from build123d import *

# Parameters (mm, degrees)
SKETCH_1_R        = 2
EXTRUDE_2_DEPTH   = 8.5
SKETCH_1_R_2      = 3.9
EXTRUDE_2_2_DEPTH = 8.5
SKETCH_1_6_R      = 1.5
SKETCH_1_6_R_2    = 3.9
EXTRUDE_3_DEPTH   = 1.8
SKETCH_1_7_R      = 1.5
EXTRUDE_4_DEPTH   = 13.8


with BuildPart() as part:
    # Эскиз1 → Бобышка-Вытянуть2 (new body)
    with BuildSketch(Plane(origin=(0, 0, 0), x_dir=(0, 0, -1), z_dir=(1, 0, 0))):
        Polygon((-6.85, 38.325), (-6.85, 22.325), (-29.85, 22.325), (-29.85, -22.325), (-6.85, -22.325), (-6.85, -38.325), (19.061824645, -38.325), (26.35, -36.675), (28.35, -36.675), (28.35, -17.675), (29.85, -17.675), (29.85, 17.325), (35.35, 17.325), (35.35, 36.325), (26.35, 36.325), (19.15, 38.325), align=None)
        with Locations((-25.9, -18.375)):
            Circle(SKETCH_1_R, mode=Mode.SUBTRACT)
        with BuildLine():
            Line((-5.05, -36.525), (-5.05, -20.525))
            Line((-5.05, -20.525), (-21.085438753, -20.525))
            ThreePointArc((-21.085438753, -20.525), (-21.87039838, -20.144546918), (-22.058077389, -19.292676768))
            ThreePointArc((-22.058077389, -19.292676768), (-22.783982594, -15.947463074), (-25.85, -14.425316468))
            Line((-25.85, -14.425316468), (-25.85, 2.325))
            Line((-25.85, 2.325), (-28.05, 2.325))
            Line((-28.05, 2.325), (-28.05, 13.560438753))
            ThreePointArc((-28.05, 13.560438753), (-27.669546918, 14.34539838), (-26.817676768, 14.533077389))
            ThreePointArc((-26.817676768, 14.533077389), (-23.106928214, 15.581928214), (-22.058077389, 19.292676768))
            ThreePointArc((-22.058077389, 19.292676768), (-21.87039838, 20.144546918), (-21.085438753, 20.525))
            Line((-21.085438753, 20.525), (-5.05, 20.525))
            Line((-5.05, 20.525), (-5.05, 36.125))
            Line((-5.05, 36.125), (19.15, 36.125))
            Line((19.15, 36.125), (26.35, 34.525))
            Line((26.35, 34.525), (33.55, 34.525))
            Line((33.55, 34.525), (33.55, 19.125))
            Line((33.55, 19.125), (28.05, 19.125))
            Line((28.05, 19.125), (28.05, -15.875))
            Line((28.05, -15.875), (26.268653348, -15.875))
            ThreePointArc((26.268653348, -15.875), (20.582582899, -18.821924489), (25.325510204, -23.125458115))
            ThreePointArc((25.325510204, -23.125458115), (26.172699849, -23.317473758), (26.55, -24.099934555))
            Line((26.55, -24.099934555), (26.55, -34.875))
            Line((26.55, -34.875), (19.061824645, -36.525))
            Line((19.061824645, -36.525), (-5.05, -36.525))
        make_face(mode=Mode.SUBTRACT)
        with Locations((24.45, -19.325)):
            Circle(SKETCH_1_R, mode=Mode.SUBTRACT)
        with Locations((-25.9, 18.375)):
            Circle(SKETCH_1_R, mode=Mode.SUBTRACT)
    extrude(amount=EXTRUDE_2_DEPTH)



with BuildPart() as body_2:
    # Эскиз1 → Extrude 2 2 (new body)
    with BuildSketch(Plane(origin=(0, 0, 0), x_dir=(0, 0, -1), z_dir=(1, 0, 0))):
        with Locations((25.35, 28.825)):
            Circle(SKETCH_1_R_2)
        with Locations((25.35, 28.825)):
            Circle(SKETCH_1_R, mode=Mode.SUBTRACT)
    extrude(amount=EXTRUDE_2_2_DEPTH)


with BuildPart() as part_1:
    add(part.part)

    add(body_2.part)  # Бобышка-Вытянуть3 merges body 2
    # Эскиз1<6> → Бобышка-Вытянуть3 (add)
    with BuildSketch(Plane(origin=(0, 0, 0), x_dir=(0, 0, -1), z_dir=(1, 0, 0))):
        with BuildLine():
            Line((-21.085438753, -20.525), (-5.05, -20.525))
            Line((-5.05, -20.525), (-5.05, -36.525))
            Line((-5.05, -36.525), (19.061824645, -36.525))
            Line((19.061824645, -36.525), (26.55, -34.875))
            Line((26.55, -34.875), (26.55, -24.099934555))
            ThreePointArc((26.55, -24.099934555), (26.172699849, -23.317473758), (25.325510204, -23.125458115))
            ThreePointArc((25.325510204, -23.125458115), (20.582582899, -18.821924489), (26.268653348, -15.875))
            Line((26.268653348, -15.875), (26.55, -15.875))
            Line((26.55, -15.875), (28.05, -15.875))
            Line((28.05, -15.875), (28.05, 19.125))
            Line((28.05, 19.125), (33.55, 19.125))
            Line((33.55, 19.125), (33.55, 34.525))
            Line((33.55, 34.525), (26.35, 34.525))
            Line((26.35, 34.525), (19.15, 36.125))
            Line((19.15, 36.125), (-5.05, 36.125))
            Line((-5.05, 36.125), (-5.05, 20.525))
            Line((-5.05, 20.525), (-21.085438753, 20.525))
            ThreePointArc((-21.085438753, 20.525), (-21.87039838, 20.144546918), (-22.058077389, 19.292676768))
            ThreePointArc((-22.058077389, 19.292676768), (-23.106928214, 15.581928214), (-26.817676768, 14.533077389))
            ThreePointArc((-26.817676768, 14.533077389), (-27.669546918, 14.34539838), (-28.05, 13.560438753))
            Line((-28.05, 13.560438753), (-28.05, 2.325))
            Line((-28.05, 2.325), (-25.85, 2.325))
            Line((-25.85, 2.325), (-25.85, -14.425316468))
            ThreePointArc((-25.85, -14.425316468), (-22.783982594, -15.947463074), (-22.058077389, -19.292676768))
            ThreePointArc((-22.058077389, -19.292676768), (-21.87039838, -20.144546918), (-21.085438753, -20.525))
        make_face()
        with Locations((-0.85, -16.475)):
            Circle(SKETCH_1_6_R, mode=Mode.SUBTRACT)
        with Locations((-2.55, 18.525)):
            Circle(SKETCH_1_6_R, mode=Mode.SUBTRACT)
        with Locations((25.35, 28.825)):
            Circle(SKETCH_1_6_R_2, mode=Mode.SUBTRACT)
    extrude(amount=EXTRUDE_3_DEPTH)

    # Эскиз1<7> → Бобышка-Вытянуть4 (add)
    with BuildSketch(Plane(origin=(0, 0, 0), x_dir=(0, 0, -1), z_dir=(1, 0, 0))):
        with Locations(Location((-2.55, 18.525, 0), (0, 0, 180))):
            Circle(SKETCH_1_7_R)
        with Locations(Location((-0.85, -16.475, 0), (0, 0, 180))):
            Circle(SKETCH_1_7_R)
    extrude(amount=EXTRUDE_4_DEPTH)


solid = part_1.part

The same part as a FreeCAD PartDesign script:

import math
import FreeCAD as App
import Part
import Sketcher
Q = App.Units.Quantity


def add_polygon(sketch, points):
    """Adds a closed chain of lines whose ends are joined by coincident constraints."""
    first, n = sketch.GeometryCount, len(points)
    for a, b in zip(points, points[1:] + points[:1]):
        sketch.addGeometry(Part.LineSegment(App.Vector(*a, 0), App.Vector(*b, 0)), False)
    for i in range(n):
        sketch.addConstraint(Sketcher.Constraint("Coincident", first + i, 2, first + (i + 1) % n, 1))

doc = App.newDocument("Part")
body = doc.addObject("PartDesign::Body", "Body")

# Sketch on YZ plane
sketch1 = doc.addObject("Sketcher::SketchObject", "Sketch")
body.addObject(sketch1)
sketch1.AttachmentSupport = (doc.YZ_Plane, [""])
sketch1.MapMode = "FlatFace"
add_polygon(sketch1, [(38.325, 6.85), (22.325, 6.85), (22.325, 29.85), (-22.325, 29.85), (-22.325, 6.85), (-38.325, 6.85), (-38.325, -19.061825), (-36.675, -26.35), (-36.675, -28.35), (-17.675, -28.35), (-17.675, -29.85), (17.325, -29.85), (17.325, -35.35), (36.325, -35.35), (36.325, -26.35), (38.325, -19.15)])  # lines 0-15
sketch1.addGeometry(Part.Circle(App.Vector(-18.375, 25.9, 0), App.Vector(0, 0, 1), 2), False)  # 16
sketch1.addGeometry(Part.Circle(App.Vector(-19.325, -24.45, 0), App.Vector(0, 0, 1), 2), False)  # 17
sketch1.addGeometry(Part.LineSegment(App.Vector(-36.525, -19.061825, 0), App.Vector(-36.525, 5.05, 0)), False)  # 18
sketch1.addGeometry(Part.LineSegment(App.Vector(-36.525, 5.05, 0), App.Vector(-20.525, 5.05, 0)), False)  # 19
sketch1.addGeometry(Part.LineSegment(App.Vector(-20.525, 5.05, 0), App.Vector(-20.525, 21.085439, 0)), False)  # 20
sketch1.addGeometry(Part.ArcOfCircle(Part.Circle(App.Vector(-19.525, 21.085439, 0), App.Vector(0, 0, 1), 1), math.radians(76.566111), math.radians(180)), False)  # 21
sketch1.addGeometry(Part.ArcOfCircle(Part.Circle(App.Vector(-18.375, 25.9, 0), App.Vector(0, 0, 1), 3.95), math.radians(-103.433889), math.radians(-0.725282)), False)  # 22
sketch1.addGeometry(Part.LineSegment(App.Vector(-14.425316, 25.85, 0), App.Vector(2.325, 25.85, 0)), False)  # 23
sketch1.addGeometry(Part.LineSegment(App.Vector(2.325, 25.85, 0), App.Vector(2.325, 28.05, 0)), False)  # 24
sketch1.addGeometry(Part.LineSegment(App.Vector(2.325, 28.05, 0), App.Vector(13.560439, 28.05, 0)), False)  # 25
sketch1.addGeometry(Part.ArcOfCircle(Part.Circle(App.Vector(13.560439, 27.05, 0), App.Vector(0, 0, 1), 1), math.radians(-13.433889), math.radians(90)), False)  # 26
sketch1.addGeometry(Part.ArcOfCircle(Part.Circle(App.Vector(18.375, 25.9, 0), App.Vector(0, 0, 1), 3.95), math.radians(166.566111), math.radians(283.433889)), False)  # 27
sketch1.addGeometry(Part.ArcOfCircle(Part.Circle(App.Vector(19.525, 21.085439, 0), App.Vector(0, 0, 1), 1), math.radians(0), math.radians(103.433889)), False)  # 28
sketch1.addGeometry(Part.LineSegment(App.Vector(20.525, 21.085439, 0), App.Vector(20.525, 5.05, 0)), False)  # 29
sketch1.addGeometry(Part.LineSegment(App.Vector(20.525, 5.05, 0), App.Vector(36.125, 5.05, 0)), False)  # 30
sketch1.addGeometry(Part.LineSegment(App.Vector(36.125, 5.05, 0), App.Vector(36.125, -19.15, 0)), False)  # 31
sketch1.addGeometry(Part.LineSegment(App.Vector(36.125, -19.15, 0), App.Vector(34.525, -26.35, 0)), False)  # 32
sketch1.addGeometry(Part.LineSegment(App.Vector(34.525, -26.35, 0), App.Vector(34.525, -33.55, 0)), False)  # 33
sketch1.addGeometry(Part.LineSegment(App.Vector(34.525, -33.55, 0), App.Vector(19.125, -33.55, 0)), False)  # 34
sketch1.addGeometry(Part.LineSegment(App.Vector(19.125, -33.55, 0), App.Vector(19.125, -28.05, 0)), False)  # 35
sketch1.addGeometry(Part.LineSegment(App.Vector(19.125, -28.05, 0), App.Vector(-15.875, -28.05, 0)), False)  # 36
sketch1.addGeometry(Part.LineSegment(App.Vector(-15.875, -28.05, 0), App.Vector(-15.875, -26.268653, 0)), False)  # 37
sketch1.addGeometry(Part.ArcOfCircle(Part.Circle(App.Vector(-19.325, -24.45, 0), App.Vector(0, 0, 1), 3.9), math.radians(-27.795772), math.radians(192.972878)), False)  # 38
sketch1.addGeometry(Part.ArcOfCircle(Part.Circle(App.Vector(-24.099935, -25.55, 0), App.Vector(0, 0, 1), 1), math.radians(-90), math.radians(12.972878)), False)  # 39
sketch1.addGeometry(Part.LineSegment(App.Vector(-24.099935, -26.55, 0), App.Vector(-34.875, -26.55, 0)), False)  # 40
sketch1.addGeometry(Part.LineSegment(App.Vector(-34.875, -26.55, 0), App.Vector(-36.525, -19.061825, 0)), False)  # 41
sketch1.addGeometry(Part.Circle(App.Vector(18.375, 25.9, 0), App.Vector(0, 0, 1), 2), False)  # 42
sketch1.addConstraint([
    Sketcher.Constraint("Coincident", 18, 2, 19, 1),
    Sketcher.Constraint("Coincident", 19, 2, 20, 1),
    Sketcher.Constraint("Tangent", 20, 2, 21, 2),
    Sketcher.Constraint("Tangent", 21, 1, 22, 1),
    Sketcher.Constraint("Coincident", 22, 2, 23, 1),
    Sketcher.Constraint("Coincident", 23, 2, 24, 1),
    Sketcher.Constraint("Coincident", 24, 2, 25, 1),
    Sketcher.Constraint("Tangent", 25, 2, 26, 2),
    Sketcher.Constraint("Tangent", 26, 1, 27, 1),
    Sketcher.Constraint("Tangent", 27, 2, 28, 2),
    Sketcher.Constraint("Tangent", 28, 1, 29, 1),
    Sketcher.Constraint("Coincident", 29, 2, 30, 1),
    Sketcher.Constraint("Coincident", 30, 2, 31, 1),
    Sketcher.Constraint("Coincident", 31, 2, 32, 1),
    Sketcher.Constraint("Coincident", 32, 2, 33, 1),
    Sketcher.Constraint("Coincident", 33, 2, 34, 1),
    Sketcher.Constraint("Coincident", 34, 2, 35, 1),
    Sketcher.Constraint("Coincident", 35, 2, 36, 1),
    Sketcher.Constraint("Coincident", 36, 2, 37, 1),
    Sketcher.Constraint("Coincident", 37, 2, 38, 1),
    Sketcher.Constraint("Tangent", 38, 2, 39, 2),
    Sketcher.Constraint("Tangent", 39, 1, 40, 1),
    Sketcher.Constraint("Coincident", 40, 2, 41, 1),
    Sketcher.Constraint("Coincident", 41, 2, 18, 1),
    Sketcher.Constraint("Horizontal", 0),
    Sketcher.Constraint("Vertical", 1),
    Sketcher.Constraint("Horizontal", 2),
    Sketcher.Constraint("Vertical", 3),
    Sketcher.Constraint("Horizontal", 4),
    Sketcher.Constraint("Vertical", 5),
    Sketcher.Constraint("Vertical", 7),
    Sketcher.Constraint("Horizontal", 8),
    Sketcher.Constraint("Vertical", 9),
    Sketcher.Constraint("Horizontal", 10),
    Sketcher.Constraint("Vertical", 11),
    Sketcher.Constraint("Horizontal", 12),
    Sketcher.Constraint("Vertical", 13),
    Sketcher.Constraint("Vertical", 15),
    Sketcher.Constraint("Vertical", 18),
    Sketcher.Constraint("Horizontal", 19),
    Sketcher.Constraint("Vertical", 20),
    Sketcher.Constraint("Horizontal", 23),
    Sketcher.Constraint("Vertical", 24),
    Sketcher.Constraint("Horizontal", 25),
    Sketcher.Constraint("Vertical", 29),
    Sketcher.Constraint("Horizontal", 30),
    Sketcher.Constraint("Vertical", 31),
    Sketcher.Constraint("Vertical", 33),
    Sketcher.Constraint("Horizontal", 34),
    Sketcher.Constraint("Vertical", 35),
    Sketcher.Constraint("Horizontal", 36),
    Sketcher.Constraint("Vertical", 37),
    Sketcher.Constraint("Horizontal", 40),
    Sketcher.Constraint("Coincident", 22, 3, 16, 3),
    Sketcher.Constraint("Coincident", 38, 3, 17, 3),
    Sketcher.Constraint("Coincident", 42, 3, 27, 3),
    Sketcher.Constraint("Equal", 16, 17),
    Sketcher.Constraint("Equal", 21, 26),
    Sketcher.Constraint("Equal", 22, 27),
    Sketcher.Constraint("Equal", 26, 28),
    Sketcher.Constraint("Equal", 28, 39),
    Sketcher.Constraint("Equal", 17, 42),
    Sketcher.Constraint("Symmetric", 16, 3, 27, 3, -2),
    Sketcher.Constraint("Symmetric", 0, 2, 3, 2, -2),
    Sketcher.Constraint("Symmetric", 19, 2, 29, 2, -2),
    Sketcher.Constraint("Horizontal", 6, 2, 13, 2),
    Sketcher.Constraint("Horizontal", 14, 2, 31, 2),
    Sketcher.Constraint("Horizontal", 13, 2, 32, 2),
    Sketcher.Constraint("Horizontal", 5, 2, 41, 2),
    Sketcher.Constraint("Equal", 0, 4),
    Sketcher.Constraint("Equal", 8, 12),
    Sketcher.Constraint("Equal", 4, 19),
    Sketcher.Constraint("Equal", 10, 36),
    Sketcher.Constraint("Equal", 11, 35),
    Sketcher.Constraint("Equal", 6, 14),
    Sketcher.Constraint("Diameter", 16, Q("4 mm")),
    Sketcher.Constraint("Radius", 21, Q("1 mm")),
    Sketcher.Constraint("Radius", 38, Q("3.9 mm")),
    Sketcher.Constraint("DistanceX", 0, 2, 0, 1, Q("16 mm")),
    Sketcher.Constraint("DistanceX", 8, 1, 8, 2, Q("19 mm")),
    Sketcher.Constraint("DistanceX", 10, 1, 10, 2, Q("35 mm")),
    Sketcher.Constraint("DistanceY", 1, 1, 1, 2, Q("23 mm")),
    Sketcher.Constraint("DistanceY", 7, 2, 7, 1, Q("2 mm")),
    Sketcher.Constraint("DistanceY", 13, 1, 13, 2, Q("9 mm")),
    Sketcher.Constraint("DistanceY", 15, 1, 15, 2, Q("26 mm")),
    Sketcher.Constraint("Radius", 22, Q("3.95 mm")),
    Sketcher.Constraint("DistanceX", 30, 1, 30, 2, Q("15.6 mm")),
    Sketcher.Constraint("DistanceX", 34, 2, 34, 1, Q("15.4 mm")),
    Sketcher.Constraint("DistanceY", 9, 2, 9, 1, Q("1.5 mm")),
    Sketcher.Constraint("DistanceY", 24, 1, 24, 2, Q("2.2 mm")),
    Sketcher.Constraint("DistanceY", 31, 2, 31, 1, Q("24.2 mm")),
    Sketcher.Constraint("DistanceY", 33, 2, 33, 1, Q("7.2 mm")),
    Sketcher.Constraint("DistanceX", 3, 2, 17, 3, Q("3 mm")),
    Sketcher.Constraint("DistanceX", 10, 2, 0, 2, Q("5 mm")),
    Sketcher.Constraint("DistanceX", 2, 2, 2, 1, Q("44.65 mm")),
    Sketcher.Constraint("DistanceY", -1, 1, 16, 3, Q("25.9 mm")),
    Sketcher.Constraint("DistanceX", 21, 3, 17, 3, Q("0.2 mm")),
    Sketcher.Constraint("DistanceY", 17, 3, 26, 3, Q("51.5 mm")),
    Sketcher.Constraint("DistanceX", 21, 3, 27, 3, Q("37.9 mm")),
    Sketcher.Constraint("DistanceY", 39, 3, 17, 3, Q("1.1 mm")),
    Sketcher.Constraint("DistanceY", 0, 2, 26, 3, Q("20.2 mm")),
    Sketcher.Constraint("DistanceY", 6, 2, 39, 3, Q("0.8 mm")),
    Sketcher.Constraint("DistanceX", 23, 2, 28, 3, Q("17.2 mm")),
    Sketcher.Constraint("DistanceX", 32, 2, 13, 2, Q("1.8 mm")),
    Sketcher.Constraint("DistanceX", 6, 2, 40, 2, Q("1.8 mm")),
    Sketcher.Constraint("DistanceY", 17, 3, -1, 1, Q("24.45 mm")),
])
pad1 = doc.addObject("PartDesign::Pad", "Pad")
body.addObject(pad1)
pad1.Profile = sketch1
pad1.Length = 8.5
body2 = doc.addObject("PartDesign::Body", "Body001")

# Sketch on YZ plane
sketch2 = doc.addObject("Sketcher::SketchObject", "Sketch001")
body2.addObject(sketch2)
sketch2.AttachmentSupport = (doc.getObject("YZ_Plane001"), [""])
sketch2.MapMode = "FlatFace"
sketch2.addGeometry([
    Part.Circle(App.Vector(28.825, -25.35, 0), App.Vector(0, 0, 1), 3.9),
    Part.Circle(App.Vector(28.825, -25.35, 0), App.Vector(0, 0, 1), 2),
], False)
sketch2.addConstraint([
    Sketcher.Constraint("Coincident", 1, 3, 0, 3),
    Sketcher.Constraint("Diameter", 1, Q("4 mm")),
    Sketcher.Constraint("Diameter", 0, Q("7.8 mm")),
    Sketcher.Constraint("DistanceY", 0, 3, -1, 1, Q("25.35 mm")),
    Sketcher.Constraint("DistanceX", -1, 1, 0, 3, Q("28.825 mm")),
])
pad2 = doc.addObject("PartDesign::Pad", "Pad001")
body2.addObject(pad2)
pad2.Profile = sketch2
pad2.Length = 8.5
body.AllowCompound = True
doc.recompute()

boolean = doc.addObject("PartDesign::Boolean", "Boolean")
body.addObject(boolean)
boolean.Type = "Fuse"
boolean.addObjects([body2])

# Sketch on YZ plane
sketch3 = doc.addObject("Sketcher::SketchObject", "Sketch002")
body.addObject(sketch3)
sketch3.AttachmentSupport = (doc.YZ_Plane, [""])
sketch3.MapMode = "FlatFace"
sketch3.addGeometry([
    Part.LineSegment(App.Vector(-20.525, 21.085439, 0), App.Vector(-20.525, 5.05, 0)),  # 0
    Part.LineSegment(App.Vector(-20.525, 5.05, 0), App.Vector(-36.525, 5.05, 0)),  # 1
    Part.LineSegment(App.Vector(-36.525, 5.05, 0), App.Vector(-36.525, -19.061825, 0)),  # 2
    Part.LineSegment(App.Vector(-36.525, -19.061825, 0), App.Vector(-34.875, -26.55, 0)),  # 3
    Part.LineSegment(App.Vector(-34.875, -26.55, 0), App.Vector(-24.099935, -26.55, 0)),  # 4
    Part.ArcOfCircle(Part.Circle(App.Vector(-24.099935, -25.55, 0), App.Vector(0, 0, 1), 1), math.radians(-90), math.radians(12.972878)),  # 5
    Part.ArcOfCircle(Part.Circle(App.Vector(-19.325, -24.45, 0), App.Vector(0, 0, 1), 3.9), math.radians(-27.795772), math.radians(192.972878)),  # 6
    Part.LineSegment(App.Vector(-15.875, -26.268653, 0), App.Vector(-15.875, -28.05, 0)),  # 7
    Part.LineSegment(App.Vector(-15.875, -28.05, 0), App.Vector(19.125, -28.05, 0)),  # 8
    Part.LineSegment(App.Vector(19.125, -28.05, 0), App.Vector(19.125, -33.55, 0)),  # 9
    Part.LineSegment(App.Vector(19.125, -33.55, 0), App.Vector(34.525, -33.55, 0)),  # 10
    Part.LineSegment(App.Vector(34.525, -33.55, 0), App.Vector(34.525, -26.35, 0)),  # 11
    Part.LineSegment(App.Vector(34.525, -26.35, 0), App.Vector(36.125, -19.15, 0)),  # 12
    Part.LineSegment(App.Vector(36.125, -19.15, 0), App.Vector(36.125, 5.05, 0)),  # 13
    Part.LineSegment(App.Vector(36.125, 5.05, 0), App.Vector(20.525, 5.05, 0)),  # 14
    Part.LineSegment(App.Vector(20.525, 5.05, 0), App.Vector(20.525, 21.085439, 0)),  # 15
    Part.ArcOfCircle(Part.Circle(App.Vector(19.525, 21.085439, 0), App.Vector(0, 0, 1), 1), math.radians(0), math.radians(103.433889)),  # 16
    Part.ArcOfCircle(Part.Circle(App.Vector(18.375, 25.9, 0), App.Vector(0, 0, 1), 3.95), math.radians(166.566111), math.radians(283.433889)),  # 17
    Part.ArcOfCircle(Part.Circle(App.Vector(13.560439, 27.05, 0), App.Vector(0, 0, 1), 1), math.radians(-13.433889), math.radians(90)),  # 18
    Part.LineSegment(App.Vector(13.560439, 28.05, 0), App.Vector(2.325, 28.05, 0)),  # 19
    Part.LineSegment(App.Vector(2.325, 28.05, 0), App.Vector(2.325, 25.85, 0)),  # 20
    Part.LineSegment(App.Vector(2.325, 25.85, 0), App.Vector(-14.425316, 25.85, 0)),  # 21
    Part.ArcOfCircle(Part.Circle(App.Vector(-18.375, 25.9, 0), App.Vector(0, 0, 1), 3.95), math.radians(-103.433889), math.radians(-0.725282)),  # 22
    Part.ArcOfCircle(Part.Circle(App.Vector(-19.525, 21.085439, 0), App.Vector(0, 0, 1), 1), math.radians(76.566111), math.radians(180)),  # 23
    Part.Circle(App.Vector(-16.475, 0.85, 0), App.Vector(0, 0, 1), 1.5),  # 24
    Part.Circle(App.Vector(18.525, 2.55, 0), App.Vector(0, 0, 1), 1.5),  # 25
    Part.Circle(App.Vector(28.825, -25.35, 0), App.Vector(0, 0, 1), 3.9),  # 26
], False)
sketch3.addConstraint([
    Sketcher.Constraint("Coincident", 0, 2, 1, 1),
    Sketcher.Constraint("Coincident", 1, 2, 2, 1),
    Sketcher.Constraint("Coincident", 2, 2, 3, 1),
    Sketcher.Constraint("Coincident", 3, 2, 4, 1),
    Sketcher.Constraint("Tangent", 4, 2, 5, 1),
    Sketcher.Constraint("Tangent", 5, 2, 6, 2),
    Sketcher.Constraint("Coincident", 6, 1, 7, 1),
    Sketcher.Constraint("Coincident", 7, 2, 8, 1),
    Sketcher.Constraint("Coincident", 8, 2, 9, 1),
    Sketcher.Constraint("Coincident", 9, 2, 10, 1),
    Sketcher.Constraint("Coincident", 10, 2, 11, 1),
    Sketcher.Constraint("Coincident", 11, 2, 12, 1),
    Sketcher.Constraint("Coincident", 12, 2, 13, 1),
    Sketcher.Constraint("Coincident", 13, 2, 14, 1),
    Sketcher.Constraint("Coincident", 14, 2, 15, 1),
    Sketcher.Constraint("Tangent", 15, 2, 16, 1),
    Sketcher.Constraint("Tangent", 16, 2, 17, 2),
    Sketcher.Constraint("Tangent", 17, 1, 18, 1),
    Sketcher.Constraint("Tangent", 18, 2, 19, 1),
    Sketcher.Constraint("Coincident", 19, 2, 20, 1),
    Sketcher.Constraint("Coincident", 20, 2, 21, 1),
    Sketcher.Constraint("Coincident", 21, 2, 22, 2),
    Sketcher.Constraint("Tangent", 22, 1, 23, 1),
    Sketcher.Constraint("Tangent", 23, 2, 0, 1),
    Sketcher.Constraint("Vertical", 0),
    Sketcher.Constraint("Horizontal", 1),
    Sketcher.Constraint("Vertical", 2),
    Sketcher.Constraint("Horizontal", 4),
    Sketcher.Constraint("Vertical", 7),
    Sketcher.Constraint("Horizontal", 8),
    Sketcher.Constraint("Vertical", 9),
    Sketcher.Constraint("Horizontal", 10),
    Sketcher.Constraint("Vertical", 11),
    Sketcher.Constraint("Vertical", 13),
    Sketcher.Constraint("Horizontal", 14),
    Sketcher.Constraint("Vertical", 15),
    Sketcher.Constraint("Horizontal", 19),
    Sketcher.Constraint("Vertical", 20),
    Sketcher.Constraint("Horizontal", 21),
    Sketcher.Constraint("Equal", 5, 16),
    Sketcher.Constraint("Equal", 16, 18),
    Sketcher.Constraint("Equal", 17, 22),
    Sketcher.Constraint("Equal", 18, 23),
    Sketcher.Constraint("Equal", 24, 25),
    Sketcher.Constraint("Equal", 6, 26),
    Sketcher.Constraint("Symmetric", 17, 3, 22, 3, -2),
    Sketcher.Constraint("Symmetric", 0, 2, 14, 2, -2),
    Sketcher.Constraint("Diameter", 24, Q("3 mm")),
    Sketcher.Constraint("Radius", 5, Q("1 mm")),
    Sketcher.Constraint("Diameter", 26, Q("7.8 mm")),
    Sketcher.Constraint("DistanceX", 1, 2, 1, 1, Q("16 mm")),
    Sketcher.Constraint("DistanceX", 8, 1, 8, 2, Q("35 mm")),
    Sketcher.Constraint("Radius", 17, Q("3.95 mm")),
    Sketcher.Constraint("DistanceX", 10, 1, 10, 2, Q("15.4 mm")),
    Sketcher.Constraint("DistanceX", 14, 2, 14, 1, Q("15.6 mm")),
    Sketcher.Constraint("DistanceY", 9, 2, 9, 1, Q("5.5 mm")),
    Sketcher.Constraint("DistanceY", 11, 1, 11, 2, Q("7.2 mm")),
    Sketcher.Constraint("DistanceY", 13, 1, 13, 2, Q("24.2 mm")),
    Sketcher.Constraint("DistanceY", 20, 2, 20, 1, Q("2.2 mm")),
    Sketcher.Constraint("DistanceX", 25, 3, 16, 3, Q("1 mm")),
    Sketcher.Constraint("DistanceX", 24, 3, 25, 3, Q("35 mm")),
    Sketcher.Constraint("DistanceX", 3, 2, 6, 1, Q("19 mm")),
    Sketcher.Constraint("DistanceX", 25, 3, 10, 2, Q("16 mm")),
    Sketcher.Constraint("DistanceY", 11, 2, 26, 3, Q("1 mm")),
    Sketcher.Constraint("DistanceY", 14, 2, 18, 3, Q("22 mm")),
    Sketcher.Constraint("DistanceY", -1, 1, 17, 3, Q("25.9 mm")),
    Sketcher.Constraint("DistanceY", 5, 3, 6, 3, Q("1.1 mm")),
    Sketcher.Constraint("DistanceX", 6, 3, 17, 3, Q("37.7 mm")),
    Sketcher.Constraint("DistanceY", 6, 3, 18, 3, Q("51.5 mm")),
    Sketcher.Constraint("DistanceX", 22, 3, 16, 3, Q("37.9 mm")),
    Sketcher.Constraint("DistanceY", 6, 3, 24, 3, Q("25.3 mm")),
    Sketcher.Constraint("DistanceY", 25, 3, 18, 3, Q("24.5 mm")),
    Sketcher.Constraint("DistanceX", 25, 3, 26, 3, Q("10.3 mm")),
    Sketcher.Constraint("DistanceY", 26, 3, 25, 3, Q("27.9 mm")),
    Sketcher.Constraint("DistanceY", 5, 3, -1, 1, Q("25.55 mm")),
    Sketcher.Constraint("DistanceX", 6, 3, 16, 3, Q("38.85 mm")),
    Sketcher.Constraint("DistanceX", 19, 2, 17, 3, Q("16.05 mm")),
    Sketcher.Constraint("DistanceY", 2, 2, 2, 1, Q("24.111825 mm")),
])
pad3 = doc.addObject("PartDesign::Pad", "Pad002")
body.addObject(pad3)
pad3.Profile = sketch3
pad3.Length = 1.8

# Sketch on YZ plane
sketch4 = doc.addObject("Sketcher::SketchObject", "Sketch003")
body.addObject(sketch4)
sketch4.AttachmentSupport = (doc.YZ_Plane, [""])
sketch4.MapMode = "FlatFace"
sketch4.addGeometry([
    Part.Circle(App.Vector(18.525, 2.55, 0), App.Vector(0, 0, 1), 1.5),
    Part.Circle(App.Vector(-16.475, 0.85, 0), App.Vector(0, 0, 1), 1.5),
], False)
sketch4.addConstraint([
    Sketcher.Constraint("Equal", 0, 1),
    Sketcher.Constraint("Diameter", 0, Q("3 mm")),
    Sketcher.Constraint("DistanceX", 1, 3, 0, 3, Q("35 mm")),
    Sketcher.Constraint("DistanceY", 1, 3, 0, 3, Q("1.7 mm")),
    Sketcher.Constraint("DistanceY", -1, 1, 0, 3, Q("2.55 mm")),
    Sketcher.Constraint("DistanceX", -1, 1, 0, 3, Q("18.525 mm")),
])
pad4 = doc.addObject("PartDesign::Pad", "Pad003")
body.addObject(pad4)
pad4.Profile = sketch4
pad4.Length = 13.8

doc.recompute()
